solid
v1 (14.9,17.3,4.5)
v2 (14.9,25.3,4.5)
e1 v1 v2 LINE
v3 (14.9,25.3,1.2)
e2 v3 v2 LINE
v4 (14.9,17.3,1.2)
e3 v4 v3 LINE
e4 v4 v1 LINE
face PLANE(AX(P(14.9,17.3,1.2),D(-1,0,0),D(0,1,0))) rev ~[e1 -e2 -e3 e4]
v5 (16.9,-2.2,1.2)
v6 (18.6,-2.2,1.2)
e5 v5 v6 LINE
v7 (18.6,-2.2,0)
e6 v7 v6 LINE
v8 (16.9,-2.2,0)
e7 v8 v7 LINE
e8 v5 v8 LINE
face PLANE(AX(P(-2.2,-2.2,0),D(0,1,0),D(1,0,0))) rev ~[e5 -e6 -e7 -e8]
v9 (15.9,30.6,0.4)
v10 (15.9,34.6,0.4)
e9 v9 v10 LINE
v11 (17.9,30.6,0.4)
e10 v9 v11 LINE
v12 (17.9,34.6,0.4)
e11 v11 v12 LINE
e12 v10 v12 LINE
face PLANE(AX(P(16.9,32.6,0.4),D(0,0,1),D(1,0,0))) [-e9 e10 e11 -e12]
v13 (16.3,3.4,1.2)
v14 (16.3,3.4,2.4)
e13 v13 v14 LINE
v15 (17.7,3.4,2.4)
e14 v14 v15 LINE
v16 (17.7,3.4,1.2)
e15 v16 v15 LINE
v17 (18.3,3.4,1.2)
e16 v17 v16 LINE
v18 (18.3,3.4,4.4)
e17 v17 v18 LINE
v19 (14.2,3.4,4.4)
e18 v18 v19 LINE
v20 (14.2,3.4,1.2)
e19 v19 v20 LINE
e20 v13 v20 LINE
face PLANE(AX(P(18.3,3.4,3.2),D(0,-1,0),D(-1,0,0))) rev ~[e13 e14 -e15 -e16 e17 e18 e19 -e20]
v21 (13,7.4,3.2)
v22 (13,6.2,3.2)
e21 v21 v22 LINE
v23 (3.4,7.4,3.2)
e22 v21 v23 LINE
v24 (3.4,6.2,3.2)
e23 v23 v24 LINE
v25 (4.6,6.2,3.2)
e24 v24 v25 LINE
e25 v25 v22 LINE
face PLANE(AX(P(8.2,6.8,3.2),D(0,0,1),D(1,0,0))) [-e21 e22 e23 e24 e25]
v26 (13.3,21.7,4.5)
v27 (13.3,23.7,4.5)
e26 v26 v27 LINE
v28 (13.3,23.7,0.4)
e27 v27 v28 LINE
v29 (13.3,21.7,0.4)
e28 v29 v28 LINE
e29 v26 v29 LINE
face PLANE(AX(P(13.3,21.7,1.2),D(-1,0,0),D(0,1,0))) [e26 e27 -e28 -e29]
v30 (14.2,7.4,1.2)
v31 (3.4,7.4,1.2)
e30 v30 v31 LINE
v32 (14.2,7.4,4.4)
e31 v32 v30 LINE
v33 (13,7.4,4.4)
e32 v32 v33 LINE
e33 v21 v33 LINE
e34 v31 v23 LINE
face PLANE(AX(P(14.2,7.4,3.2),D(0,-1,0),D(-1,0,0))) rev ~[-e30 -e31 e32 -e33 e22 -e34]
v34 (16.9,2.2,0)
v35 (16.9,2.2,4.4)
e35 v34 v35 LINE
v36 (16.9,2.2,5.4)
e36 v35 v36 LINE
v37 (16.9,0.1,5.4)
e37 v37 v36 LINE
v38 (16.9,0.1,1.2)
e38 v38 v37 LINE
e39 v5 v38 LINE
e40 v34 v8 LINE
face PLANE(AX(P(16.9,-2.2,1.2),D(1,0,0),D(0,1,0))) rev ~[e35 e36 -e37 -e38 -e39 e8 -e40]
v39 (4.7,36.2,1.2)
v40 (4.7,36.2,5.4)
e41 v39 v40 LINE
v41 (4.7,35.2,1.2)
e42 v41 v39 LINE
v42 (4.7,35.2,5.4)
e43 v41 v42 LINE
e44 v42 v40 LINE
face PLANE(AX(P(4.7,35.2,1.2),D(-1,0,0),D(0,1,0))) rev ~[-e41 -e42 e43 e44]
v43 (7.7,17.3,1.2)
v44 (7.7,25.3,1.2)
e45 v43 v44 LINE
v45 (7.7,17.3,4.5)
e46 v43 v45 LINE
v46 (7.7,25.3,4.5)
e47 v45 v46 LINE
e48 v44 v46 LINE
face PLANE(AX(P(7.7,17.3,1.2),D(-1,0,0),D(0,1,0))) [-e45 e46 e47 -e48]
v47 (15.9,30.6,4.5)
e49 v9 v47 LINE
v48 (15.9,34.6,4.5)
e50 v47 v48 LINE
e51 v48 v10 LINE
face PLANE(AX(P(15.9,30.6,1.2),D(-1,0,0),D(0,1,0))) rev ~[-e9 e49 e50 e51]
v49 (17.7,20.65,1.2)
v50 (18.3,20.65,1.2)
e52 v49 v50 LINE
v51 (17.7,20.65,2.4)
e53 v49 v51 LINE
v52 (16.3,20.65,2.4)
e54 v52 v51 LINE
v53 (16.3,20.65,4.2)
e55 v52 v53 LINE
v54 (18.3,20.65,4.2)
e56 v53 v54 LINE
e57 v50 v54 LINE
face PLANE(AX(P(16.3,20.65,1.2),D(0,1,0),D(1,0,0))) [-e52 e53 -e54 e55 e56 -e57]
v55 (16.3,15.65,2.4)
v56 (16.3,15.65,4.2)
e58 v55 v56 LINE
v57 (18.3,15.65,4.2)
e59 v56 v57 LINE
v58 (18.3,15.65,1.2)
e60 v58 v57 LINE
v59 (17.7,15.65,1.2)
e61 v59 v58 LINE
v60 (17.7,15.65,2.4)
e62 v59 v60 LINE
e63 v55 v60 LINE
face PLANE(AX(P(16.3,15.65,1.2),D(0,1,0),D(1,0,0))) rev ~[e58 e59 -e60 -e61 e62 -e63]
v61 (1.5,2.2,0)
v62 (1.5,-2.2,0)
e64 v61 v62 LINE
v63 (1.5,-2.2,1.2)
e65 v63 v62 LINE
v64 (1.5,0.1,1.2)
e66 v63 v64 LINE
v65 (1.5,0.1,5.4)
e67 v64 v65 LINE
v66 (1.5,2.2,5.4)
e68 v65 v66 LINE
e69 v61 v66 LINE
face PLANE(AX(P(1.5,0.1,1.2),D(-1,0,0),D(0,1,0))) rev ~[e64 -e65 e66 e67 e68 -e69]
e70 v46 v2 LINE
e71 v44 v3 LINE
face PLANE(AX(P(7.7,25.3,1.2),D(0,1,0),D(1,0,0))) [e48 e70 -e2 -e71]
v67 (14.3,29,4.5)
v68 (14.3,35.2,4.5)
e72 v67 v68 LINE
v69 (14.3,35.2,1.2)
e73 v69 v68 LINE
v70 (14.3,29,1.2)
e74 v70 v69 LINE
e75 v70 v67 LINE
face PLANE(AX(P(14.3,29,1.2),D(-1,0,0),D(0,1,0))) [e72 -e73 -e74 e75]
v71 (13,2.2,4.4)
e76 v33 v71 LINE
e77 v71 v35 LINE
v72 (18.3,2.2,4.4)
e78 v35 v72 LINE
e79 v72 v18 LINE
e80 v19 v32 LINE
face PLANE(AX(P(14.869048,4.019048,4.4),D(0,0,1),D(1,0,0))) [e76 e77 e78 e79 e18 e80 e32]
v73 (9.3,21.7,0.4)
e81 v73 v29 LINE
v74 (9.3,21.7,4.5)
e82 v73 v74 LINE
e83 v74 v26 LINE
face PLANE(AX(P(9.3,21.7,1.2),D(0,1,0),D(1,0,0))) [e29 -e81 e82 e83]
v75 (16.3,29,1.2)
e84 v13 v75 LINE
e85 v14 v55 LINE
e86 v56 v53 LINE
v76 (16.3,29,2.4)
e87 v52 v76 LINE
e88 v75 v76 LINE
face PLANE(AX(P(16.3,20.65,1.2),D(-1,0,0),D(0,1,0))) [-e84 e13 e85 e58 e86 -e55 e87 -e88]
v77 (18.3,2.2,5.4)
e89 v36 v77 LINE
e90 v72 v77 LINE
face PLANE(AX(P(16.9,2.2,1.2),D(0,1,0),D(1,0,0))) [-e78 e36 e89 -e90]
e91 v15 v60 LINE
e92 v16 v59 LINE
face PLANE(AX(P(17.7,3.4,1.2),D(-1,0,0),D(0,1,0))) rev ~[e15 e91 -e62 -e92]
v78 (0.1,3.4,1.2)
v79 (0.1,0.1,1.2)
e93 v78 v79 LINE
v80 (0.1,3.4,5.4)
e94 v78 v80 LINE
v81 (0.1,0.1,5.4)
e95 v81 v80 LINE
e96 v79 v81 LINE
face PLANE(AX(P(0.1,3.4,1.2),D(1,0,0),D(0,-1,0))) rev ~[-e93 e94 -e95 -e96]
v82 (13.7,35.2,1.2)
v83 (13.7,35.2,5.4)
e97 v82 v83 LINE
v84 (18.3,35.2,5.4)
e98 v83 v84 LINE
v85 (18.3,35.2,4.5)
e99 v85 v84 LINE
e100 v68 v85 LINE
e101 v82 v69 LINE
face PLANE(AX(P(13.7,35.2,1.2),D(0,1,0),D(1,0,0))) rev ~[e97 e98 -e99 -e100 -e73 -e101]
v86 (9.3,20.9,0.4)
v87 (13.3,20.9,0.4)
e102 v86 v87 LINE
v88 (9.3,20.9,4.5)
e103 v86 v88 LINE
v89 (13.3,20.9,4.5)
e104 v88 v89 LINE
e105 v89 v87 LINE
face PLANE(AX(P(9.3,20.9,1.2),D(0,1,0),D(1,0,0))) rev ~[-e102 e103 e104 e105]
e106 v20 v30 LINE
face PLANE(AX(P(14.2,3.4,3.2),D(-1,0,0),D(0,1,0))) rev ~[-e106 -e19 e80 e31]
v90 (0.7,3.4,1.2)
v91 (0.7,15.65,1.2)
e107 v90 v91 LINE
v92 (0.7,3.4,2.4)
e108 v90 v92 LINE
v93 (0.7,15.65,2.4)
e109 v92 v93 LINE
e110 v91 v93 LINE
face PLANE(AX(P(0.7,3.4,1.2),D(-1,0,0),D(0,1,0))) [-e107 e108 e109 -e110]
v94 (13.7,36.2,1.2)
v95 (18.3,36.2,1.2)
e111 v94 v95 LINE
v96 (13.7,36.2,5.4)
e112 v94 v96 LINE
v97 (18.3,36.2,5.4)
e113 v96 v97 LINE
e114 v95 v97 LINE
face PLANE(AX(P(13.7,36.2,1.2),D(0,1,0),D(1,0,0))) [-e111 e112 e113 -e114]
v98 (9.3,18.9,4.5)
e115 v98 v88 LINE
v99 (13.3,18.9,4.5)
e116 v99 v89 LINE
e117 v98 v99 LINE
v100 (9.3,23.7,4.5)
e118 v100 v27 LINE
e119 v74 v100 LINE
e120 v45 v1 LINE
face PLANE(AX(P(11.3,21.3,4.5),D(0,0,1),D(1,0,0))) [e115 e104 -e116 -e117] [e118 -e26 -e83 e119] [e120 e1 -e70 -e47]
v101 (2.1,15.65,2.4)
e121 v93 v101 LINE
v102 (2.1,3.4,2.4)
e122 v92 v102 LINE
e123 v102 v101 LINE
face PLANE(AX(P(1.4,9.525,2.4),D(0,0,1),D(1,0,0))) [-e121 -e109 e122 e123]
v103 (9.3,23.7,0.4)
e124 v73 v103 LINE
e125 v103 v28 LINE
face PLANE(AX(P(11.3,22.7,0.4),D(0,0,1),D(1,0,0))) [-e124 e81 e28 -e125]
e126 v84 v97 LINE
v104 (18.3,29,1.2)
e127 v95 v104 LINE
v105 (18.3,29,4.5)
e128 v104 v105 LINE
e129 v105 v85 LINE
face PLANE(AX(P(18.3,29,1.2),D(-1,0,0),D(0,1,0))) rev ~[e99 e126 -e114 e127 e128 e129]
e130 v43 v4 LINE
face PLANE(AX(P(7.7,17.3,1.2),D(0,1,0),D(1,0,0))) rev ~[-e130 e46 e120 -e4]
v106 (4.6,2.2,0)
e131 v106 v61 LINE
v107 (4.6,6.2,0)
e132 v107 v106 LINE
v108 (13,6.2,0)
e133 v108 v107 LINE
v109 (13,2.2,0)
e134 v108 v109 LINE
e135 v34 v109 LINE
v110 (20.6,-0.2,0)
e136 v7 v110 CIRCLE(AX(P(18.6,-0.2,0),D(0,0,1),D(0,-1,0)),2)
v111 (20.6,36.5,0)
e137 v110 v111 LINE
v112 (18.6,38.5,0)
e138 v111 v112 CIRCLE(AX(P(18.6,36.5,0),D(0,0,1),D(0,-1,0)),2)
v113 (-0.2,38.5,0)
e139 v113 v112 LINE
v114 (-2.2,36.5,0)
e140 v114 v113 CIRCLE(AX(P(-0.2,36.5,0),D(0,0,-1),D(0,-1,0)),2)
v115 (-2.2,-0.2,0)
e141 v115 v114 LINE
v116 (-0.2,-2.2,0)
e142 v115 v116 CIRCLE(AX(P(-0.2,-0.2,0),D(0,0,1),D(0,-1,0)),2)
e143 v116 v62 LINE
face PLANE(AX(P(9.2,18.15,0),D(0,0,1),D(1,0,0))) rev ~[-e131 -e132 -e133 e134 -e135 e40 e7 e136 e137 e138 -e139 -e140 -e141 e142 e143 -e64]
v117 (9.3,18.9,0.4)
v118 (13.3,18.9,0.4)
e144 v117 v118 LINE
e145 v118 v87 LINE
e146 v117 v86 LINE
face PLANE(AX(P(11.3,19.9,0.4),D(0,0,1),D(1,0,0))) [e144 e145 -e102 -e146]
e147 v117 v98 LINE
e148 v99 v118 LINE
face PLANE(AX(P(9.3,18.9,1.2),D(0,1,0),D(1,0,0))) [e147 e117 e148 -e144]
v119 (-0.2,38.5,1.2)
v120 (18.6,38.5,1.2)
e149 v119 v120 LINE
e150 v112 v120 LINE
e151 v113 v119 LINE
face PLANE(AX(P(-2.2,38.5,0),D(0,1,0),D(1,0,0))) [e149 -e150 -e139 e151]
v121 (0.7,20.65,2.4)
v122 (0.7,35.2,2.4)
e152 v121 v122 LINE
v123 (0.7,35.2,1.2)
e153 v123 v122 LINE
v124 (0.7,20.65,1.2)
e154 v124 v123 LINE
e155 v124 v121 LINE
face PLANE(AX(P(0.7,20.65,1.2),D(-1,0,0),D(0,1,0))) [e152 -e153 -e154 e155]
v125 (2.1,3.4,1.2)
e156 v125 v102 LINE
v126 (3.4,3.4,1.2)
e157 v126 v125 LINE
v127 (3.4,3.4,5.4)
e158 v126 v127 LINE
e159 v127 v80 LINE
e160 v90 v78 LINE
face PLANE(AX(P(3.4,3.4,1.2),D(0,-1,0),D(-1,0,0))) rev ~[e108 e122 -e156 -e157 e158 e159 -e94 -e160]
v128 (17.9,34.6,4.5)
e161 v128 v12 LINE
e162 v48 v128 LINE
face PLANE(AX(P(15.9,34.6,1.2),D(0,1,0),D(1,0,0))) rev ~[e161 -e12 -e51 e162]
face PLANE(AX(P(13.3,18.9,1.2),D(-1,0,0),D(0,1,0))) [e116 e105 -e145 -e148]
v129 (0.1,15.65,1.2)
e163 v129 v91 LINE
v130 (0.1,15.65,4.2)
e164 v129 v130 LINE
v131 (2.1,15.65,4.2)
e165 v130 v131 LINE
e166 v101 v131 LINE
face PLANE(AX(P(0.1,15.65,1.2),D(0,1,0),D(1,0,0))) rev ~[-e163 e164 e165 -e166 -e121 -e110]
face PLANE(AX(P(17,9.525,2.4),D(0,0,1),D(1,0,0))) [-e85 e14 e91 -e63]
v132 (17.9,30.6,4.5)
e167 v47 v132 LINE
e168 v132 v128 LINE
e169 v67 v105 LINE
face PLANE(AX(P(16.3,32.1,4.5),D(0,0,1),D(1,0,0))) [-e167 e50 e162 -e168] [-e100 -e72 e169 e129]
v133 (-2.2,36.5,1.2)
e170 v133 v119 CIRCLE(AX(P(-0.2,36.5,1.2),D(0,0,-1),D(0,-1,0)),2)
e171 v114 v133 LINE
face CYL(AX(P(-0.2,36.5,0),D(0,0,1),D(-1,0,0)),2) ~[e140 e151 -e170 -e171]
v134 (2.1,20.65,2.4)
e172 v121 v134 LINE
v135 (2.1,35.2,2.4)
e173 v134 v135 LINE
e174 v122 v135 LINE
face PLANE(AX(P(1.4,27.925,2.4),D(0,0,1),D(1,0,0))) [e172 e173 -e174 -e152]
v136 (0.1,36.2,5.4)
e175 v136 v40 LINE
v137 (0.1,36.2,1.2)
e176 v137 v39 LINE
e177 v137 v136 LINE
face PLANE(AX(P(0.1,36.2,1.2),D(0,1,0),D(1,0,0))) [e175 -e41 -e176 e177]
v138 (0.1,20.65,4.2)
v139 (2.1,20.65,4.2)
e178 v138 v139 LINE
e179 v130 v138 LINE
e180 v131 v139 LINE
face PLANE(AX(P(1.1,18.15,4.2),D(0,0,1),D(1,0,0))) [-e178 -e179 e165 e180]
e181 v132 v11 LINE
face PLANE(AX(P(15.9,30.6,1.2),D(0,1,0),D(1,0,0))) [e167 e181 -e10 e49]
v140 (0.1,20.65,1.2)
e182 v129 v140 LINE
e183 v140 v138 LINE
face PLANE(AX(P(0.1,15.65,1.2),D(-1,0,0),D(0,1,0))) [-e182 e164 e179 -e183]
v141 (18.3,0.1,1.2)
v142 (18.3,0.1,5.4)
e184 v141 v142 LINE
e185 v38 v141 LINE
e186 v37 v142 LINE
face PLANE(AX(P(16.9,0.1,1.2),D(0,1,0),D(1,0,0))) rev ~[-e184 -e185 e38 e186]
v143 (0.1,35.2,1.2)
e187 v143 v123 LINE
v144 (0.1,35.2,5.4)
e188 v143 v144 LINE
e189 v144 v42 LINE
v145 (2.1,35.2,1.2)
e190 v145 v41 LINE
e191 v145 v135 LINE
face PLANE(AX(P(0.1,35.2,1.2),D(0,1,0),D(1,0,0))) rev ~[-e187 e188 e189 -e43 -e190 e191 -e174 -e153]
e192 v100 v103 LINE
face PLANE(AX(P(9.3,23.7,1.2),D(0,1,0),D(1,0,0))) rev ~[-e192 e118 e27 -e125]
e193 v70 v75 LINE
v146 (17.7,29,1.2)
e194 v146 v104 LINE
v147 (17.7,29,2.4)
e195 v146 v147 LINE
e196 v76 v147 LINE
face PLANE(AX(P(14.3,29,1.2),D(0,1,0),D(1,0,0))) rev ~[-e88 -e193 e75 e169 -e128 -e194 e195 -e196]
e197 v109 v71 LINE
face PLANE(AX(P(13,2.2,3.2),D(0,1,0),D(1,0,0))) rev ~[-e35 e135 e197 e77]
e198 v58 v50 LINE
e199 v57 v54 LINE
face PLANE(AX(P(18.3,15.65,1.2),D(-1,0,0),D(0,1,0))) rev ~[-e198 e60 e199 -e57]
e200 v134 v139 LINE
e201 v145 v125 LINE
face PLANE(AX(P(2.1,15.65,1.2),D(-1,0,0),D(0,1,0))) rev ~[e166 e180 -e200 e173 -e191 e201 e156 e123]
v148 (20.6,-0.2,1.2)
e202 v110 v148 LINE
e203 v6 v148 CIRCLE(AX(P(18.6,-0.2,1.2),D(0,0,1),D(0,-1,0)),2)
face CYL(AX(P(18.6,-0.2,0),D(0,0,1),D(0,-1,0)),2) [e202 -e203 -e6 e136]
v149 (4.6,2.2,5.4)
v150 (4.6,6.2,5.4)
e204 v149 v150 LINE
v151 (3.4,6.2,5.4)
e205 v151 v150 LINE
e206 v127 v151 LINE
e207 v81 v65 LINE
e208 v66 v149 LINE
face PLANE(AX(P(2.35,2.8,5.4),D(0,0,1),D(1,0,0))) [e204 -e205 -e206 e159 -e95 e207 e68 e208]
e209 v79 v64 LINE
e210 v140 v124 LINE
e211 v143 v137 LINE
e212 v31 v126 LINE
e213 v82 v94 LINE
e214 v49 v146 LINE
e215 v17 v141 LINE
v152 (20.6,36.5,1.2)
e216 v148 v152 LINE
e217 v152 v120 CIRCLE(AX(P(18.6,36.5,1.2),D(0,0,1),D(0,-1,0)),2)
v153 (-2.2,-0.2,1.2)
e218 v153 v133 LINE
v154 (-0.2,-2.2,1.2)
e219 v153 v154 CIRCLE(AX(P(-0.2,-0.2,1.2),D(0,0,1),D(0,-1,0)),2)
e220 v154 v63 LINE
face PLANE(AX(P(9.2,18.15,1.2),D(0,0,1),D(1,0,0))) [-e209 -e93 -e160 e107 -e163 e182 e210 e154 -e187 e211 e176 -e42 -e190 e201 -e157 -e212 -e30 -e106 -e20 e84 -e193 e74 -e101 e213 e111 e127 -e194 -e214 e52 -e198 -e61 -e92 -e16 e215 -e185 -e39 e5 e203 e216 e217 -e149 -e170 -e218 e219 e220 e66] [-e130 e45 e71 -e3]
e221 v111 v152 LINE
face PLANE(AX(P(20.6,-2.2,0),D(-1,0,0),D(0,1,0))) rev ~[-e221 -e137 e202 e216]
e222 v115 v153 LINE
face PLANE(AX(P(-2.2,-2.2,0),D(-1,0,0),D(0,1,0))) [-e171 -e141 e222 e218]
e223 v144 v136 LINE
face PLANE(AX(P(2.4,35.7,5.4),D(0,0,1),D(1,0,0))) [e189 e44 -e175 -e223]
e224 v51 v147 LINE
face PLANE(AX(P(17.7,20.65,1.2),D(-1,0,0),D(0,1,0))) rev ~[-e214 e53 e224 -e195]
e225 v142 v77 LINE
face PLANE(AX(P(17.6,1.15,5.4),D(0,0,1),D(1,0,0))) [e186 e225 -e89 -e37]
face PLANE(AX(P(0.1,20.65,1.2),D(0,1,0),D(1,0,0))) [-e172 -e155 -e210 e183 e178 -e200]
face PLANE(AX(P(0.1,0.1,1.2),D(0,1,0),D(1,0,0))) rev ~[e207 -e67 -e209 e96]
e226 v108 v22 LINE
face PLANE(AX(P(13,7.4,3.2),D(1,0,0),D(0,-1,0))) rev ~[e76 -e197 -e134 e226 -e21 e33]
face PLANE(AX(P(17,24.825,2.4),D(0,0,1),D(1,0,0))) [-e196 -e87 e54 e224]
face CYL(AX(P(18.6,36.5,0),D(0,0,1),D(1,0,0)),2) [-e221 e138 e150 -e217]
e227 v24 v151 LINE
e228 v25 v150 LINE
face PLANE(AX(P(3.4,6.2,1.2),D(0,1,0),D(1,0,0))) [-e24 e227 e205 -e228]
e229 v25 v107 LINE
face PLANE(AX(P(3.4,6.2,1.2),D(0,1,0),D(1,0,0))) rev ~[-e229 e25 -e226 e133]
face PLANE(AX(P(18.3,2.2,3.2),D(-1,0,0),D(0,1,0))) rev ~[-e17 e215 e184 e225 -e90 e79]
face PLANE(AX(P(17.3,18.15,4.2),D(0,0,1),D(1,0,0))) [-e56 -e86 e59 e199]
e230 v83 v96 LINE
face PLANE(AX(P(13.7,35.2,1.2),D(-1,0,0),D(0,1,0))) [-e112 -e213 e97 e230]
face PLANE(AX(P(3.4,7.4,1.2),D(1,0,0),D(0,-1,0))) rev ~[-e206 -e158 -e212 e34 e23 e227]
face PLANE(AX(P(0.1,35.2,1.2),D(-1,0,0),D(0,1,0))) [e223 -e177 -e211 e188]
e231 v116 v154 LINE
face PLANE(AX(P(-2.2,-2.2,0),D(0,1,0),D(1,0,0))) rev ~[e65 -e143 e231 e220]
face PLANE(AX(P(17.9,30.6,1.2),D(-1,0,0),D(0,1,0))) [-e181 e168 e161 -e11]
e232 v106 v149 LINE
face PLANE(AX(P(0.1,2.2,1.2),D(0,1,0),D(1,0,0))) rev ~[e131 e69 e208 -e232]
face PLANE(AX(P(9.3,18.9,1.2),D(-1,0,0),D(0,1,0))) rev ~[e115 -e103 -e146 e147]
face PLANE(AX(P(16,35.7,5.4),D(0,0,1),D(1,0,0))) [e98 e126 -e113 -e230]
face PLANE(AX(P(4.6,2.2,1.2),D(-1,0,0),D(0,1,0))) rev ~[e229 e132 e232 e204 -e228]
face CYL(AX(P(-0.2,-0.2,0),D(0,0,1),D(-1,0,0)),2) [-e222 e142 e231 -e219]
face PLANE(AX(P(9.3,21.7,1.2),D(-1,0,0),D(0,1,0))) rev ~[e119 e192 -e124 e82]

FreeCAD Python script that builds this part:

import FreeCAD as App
import Part
import Sketcher
from FreeCAD import Vector
Q = App.Units.Quantity


def edges_at(feature, points):
    """Names of the edges that pass closest to the given points."""
    edges = feature.Shape.Edges
    near = lambda p: min(range(len(edges)), key=lambda i: edges[i].distToShape(Part.Vertex(*p))[0])
    return sorted({f"Edge{near(p) + 1}" for p in points})

doc = App.newDocument("Part")
body = doc.addObject("PartDesign::Body", "Body")

sketch1 = body.newObject("Sketcher::SketchObject", "Sketch")
sketch1.AttachmentSupport = (doc.getObject("XY_Plane"), [""])
sketch1.MapMode = "FlatFace"
sketch1.addGeometry([
    Part.LineSegment(Vector(-2.2, 38.5, 0), Vector(-2.2, -2.2, 0)),
    Part.LineSegment(Vector(-2.2, -2.2, 0), Vector(20.6, -2.2, 0)),
    Part.LineSegment(Vector(20.6, -2.2, 0), Vector(20.6, 38.5, 0)),
    Part.LineSegment(Vector(20.6, 38.5, 0), Vector(-2.2, 38.5, 0)),
], False)
sketch1.addConstraint([
    Sketcher.Constraint("Coincident", 0, 2, 1, 1),
    Sketcher.Constraint("Coincident", 1, 2, 2, 1),
    Sketcher.Constraint("Coincident", 2, 2, 3, 1),
    Sketcher.Constraint("Coincident", 3, 2, 0, 1),
    Sketcher.Constraint("Vertical", 0),
    Sketcher.Constraint("Horizontal", 1),
    Sketcher.Constraint("Vertical", 2),
    Sketcher.Constraint("Horizontal", 3),
    Sketcher.Constraint("DistanceX", 1, 1, 1, 2, Q("22.8 mm")),
    Sketcher.Constraint("DistanceY", 0, 2, 0, 1, Q("40.7 mm")),
    Sketcher.Constraint("DistanceX", 0, 2, -1, 1, Q("2.2 mm")),
    Sketcher.Constraint("DistanceY", 0, 2, -1, 1, Q("2.2 mm")),
])
pad1 = body.newObject("PartDesign::Pad", "Pad")
pad1.Profile = sketch1
pad1.Length = 1.2
doc.recompute()

fillet = body.newObject("PartDesign::Fillet", "Fillet")
fillet.Base = (pad1, edges_at(pad1, [
    (-2.2, 38.5, 0.6),
    (20.6, 38.5, 0.6),
    (20.6, -2.2, 0.6),
    (-2.2, -2.2, 0.6),
]))
fillet.Radius = 2

sketch2 = body.newObject("Sketcher::SketchObject", "Sketch001")
sketch2.AttachmentSupport = (doc.getObject("XY_Plane"), [""])
sketch2.MapMode = "FlatFace"
sketch2.AttachmentOffset = App.Placement(Vector(0, 0, 1.2), App.Rotation())
sketch2.addGeometry([
    Part.LineSegment(Vector(1.5, 2.2, 0), Vector(1.5, -2.2, 0)),
    Part.LineSegment(Vector(1.5, -2.2, 0), Vector(16.9, -2.2, 0)),
    Part.LineSegment(Vector(16.9, -2.2, 0), Vector(16.9, 2.2, 0)),
    Part.LineSegment(Vector(16.9, 2.2, 0), Vector(1.5, 2.2, 0)),
], False)
sketch2.addConstraint([
    Sketcher.Constraint("Coincident", 0, 2, 1, 1),
    Sketcher.Constraint("Coincident", 1, 2, 2, 1),
    Sketcher.Constraint("Coincident", 2, 2, 3, 1),
    Sketcher.Constraint("Coincident", 3, 2, 0, 1),
    Sketcher.Constraint("Vertical", 0),
    Sketcher.Constraint("Horizontal", 1),
    Sketcher.Constraint("Vertical", 2),
    Sketcher.Constraint("Horizontal", 3),
    Sketcher.Constraint("DistanceX", 1, 1, 1, 2, Q("15.4 mm")),
    Sketcher.Constraint("DistanceY", 0, 2, 0, 1, Q("4.4 mm")),
    Sketcher.Constraint("DistanceX", -1, 1, 0, 2, Q("1.5 mm")),
    Sketcher.Constraint("DistanceY", 0, 2, -1, 1, Q("2.2 mm")),
])
pocket1 = body.newObject("PartDesign::Pocket", "Pocket")
pocket1.Profile = sketch2
pocket1.Type = "UpToFirst"

sketch3 = body.newObject("Sketcher::SketchObject", "Sketch002")
sketch3.AttachmentSupport = (doc.getObject("XY_Plane"), [""])
sketch3.MapMode = "FlatFace"
sketch3.AttachmentOffset = App.Placement(Vector(0, 0, 1.2), App.Rotation())
sketch3.addGeometry([
    Part.LineSegment(Vector(1.5, 2.2, 0), Vector(1.5, -2.2, 0)),
    Part.LineSegment(Vector(1.5, -2.2, 0), Vector(16.9, -2.2, 0)),
    Part.LineSegment(Vector(16.9, -2.2, 0), Vector(16.9, 2.2, 0)),
    Part.LineSegment(Vector(16.9, 2.2, 0), Vector(1.5, 2.2, 0)),
], False)
sketch3.addConstraint([
    Sketcher.Constraint("Coincident", 0, 2, 1, 1),
    Sketcher.Constraint("Coincident", 1, 2, 2, 1),
    Sketcher.Constraint("Coincident", 2, 2, 3, 1),
    Sketcher.Constraint("Coincident", 3, 2, 0, 1),
    Sketcher.Constraint("Vertical", 0),
    Sketcher.Constraint("Horizontal", 1),
    Sketcher.Constraint("Vertical", 2),
    Sketcher.Constraint("Horizontal", 3),
    Sketcher.Constraint("DistanceX", 1, 1, 1, 2, Q("15.4 mm")),
    Sketcher.Constraint("DistanceY", 0, 2, 0, 1, Q("4.4 mm")),
    Sketcher.Constraint("DistanceX", -1, 1, 0, 2, Q("1.5 mm")),
    Sketcher.Constraint("DistanceY", 0, 2, -1, 1, Q("2.2 mm")),
])
pocket2 = body.newObject("PartDesign::Pocket", "Pocket001")
pocket2.Profile = sketch3
pocket2.Length = 44.681232
pocket2.Reversed = True

sketch4 = body.newObject("Sketcher::SketchObject", "Sketch003")
sketch4.AttachmentSupport = (doc.getObject("XY_Plane"), [""])
sketch4.MapMode = "FlatFace"
sketch4.AttachmentOffset = App.Placement(Vector(0, 0, 1.2), App.Rotation())
sketch4.addGeometry([
    Part.LineSegment(Vector(4.6, 6.2, 0), Vector(4.6, 2.2, 0)),
    Part.LineSegment(Vector(4.6, 2.2, 0), Vector(13, 2.2, 0)),
    Part.LineSegment(Vector(13, 2.2, 0), Vector(13, 6.2, 0)),
    Part.LineSegment(Vector(13, 6.2, 0), Vector(4.6, 6.2, 0)),
], False)
sketch4.addConstraint([
    Sketcher.Constraint("Coincident", 0, 2, 1, 1),
    Sketcher.Constraint("Coincident", 1, 2, 2, 1),
    Sketcher.Constraint("Coincident", 2, 2, 3, 1),
    Sketcher.Constraint("Coincident", 3, 2, 0, 1),
    Sketcher.Constraint("Vertical", 0),
    Sketcher.Constraint("Horizontal", 1),
    Sketcher.Constraint("Vertical", 2),
    Sketcher.Constraint("Horizontal", 3),
    Sketcher.Constraint("DistanceY", 0, 2, 0, 1, Q("4 mm")),
    Sketcher.Constraint("DistanceX", 1, 1, 1, 2, Q("8.4 mm")),
    Sketcher.Constraint("DistanceX", -1, 1, 1, 2, Q("13 mm")),
    Sketcher.Constraint("DistanceY", -1, 1, 0, 2, Q("2.2 mm")),
])
pocket3 = body.newObject("PartDesign::Pocket", "Pocket002")
pocket3.Profile = sketch4
pocket3.Type = "UpToFirst"

sketch5 = body.newObject("Sketcher::SketchObject", "Sketch004")
sketch5.AttachmentSupport = (doc.getObject("XY_Plane"), [""])
sketch5.MapMode = "FlatFace"
sketch5.AttachmentOffset = App.Placement(Vector(0, 0, 1.2), App.Rotation())
sketch5.addGeometry([
    Part.LineSegment(Vector(13.7, 36.2, 0), Vector(13.7, 35.2, 0)),
    Part.LineSegment(Vector(13.7, 35.2, 0), Vector(18.3, 35.2, 0)),
    Part.LineSegment(Vector(18.3, 35.2, 0), Vector(18.3, 36.2, 0)),
    Part.LineSegment(Vector(18.3, 36.2, 0), Vector(13.7, 36.2, 0)),
    Part.LineSegment(Vector(0.1, 36.2, 0), Vector(0.1, 35.2, 0)),
    Part.LineSegment(Vector(0.1, 35.2, 0), Vector(4.7, 35.2, 0)),
    Part.LineSegment(Vector(4.7, 35.2, 0), Vector(4.7, 36.2, 0)),
    Part.LineSegment(Vector(4.7, 36.2, 0), Vector(0.1, 36.2, 0)),
    Part.LineSegment(Vector(0.1, 2.2, 0), Vector(0.1, 0.1, 0)),
    Part.LineSegment(Vector(0.1, 0.1, 0), Vector(1.5, 0.1, 0)),
    Part.LineSegment(Vector(1.5, 0.1, 0), Vector(1.5, 2.2, 0)),
    Part.LineSegment(Vector(1.5, 2.2, 0), Vector(0.1, 2.2, 0)),
    Part.LineSegment(Vector(16.9, 2.2, 0), Vector(16.9, 0.1, 0)),
    Part.LineSegment(Vector(16.9, 0.1, 0), Vector(18.3, 0.1, 0)),
    Part.LineSegment(Vector(18.3, 0.1, 0), Vector(18.3, 2.2, 0)),
    Part.LineSegment(Vector(18.3, 2.2, 0), Vector(16.9, 2.2, 0)),
], False)
sketch5.addConstraint([
    Sketcher.Constraint("Coincident", 0, 2, 1, 1),
    Sketcher.Constraint("Coincident", 1, 2, 2, 1),
    Sketcher.Constraint("Coincident", 2, 2, 3, 1),
    Sketcher.Constraint("Coincident", 3, 2, 0, 1),
    Sketcher.Constraint("Coincident", 4, 2, 5, 1),
    Sketcher.Constraint("Coincident", 5, 2, 6, 1),
    Sketcher.Constraint("Coincident", 6, 2, 7, 1),
    Sketcher.Constraint("Coincident", 7, 2, 4, 1),
    Sketcher.Constraint("Coincident", 8, 2, 9, 1),
    Sketcher.Constraint("Coincident", 9, 2, 10, 1),
    Sketcher.Constraint("Coincident", 10, 2, 11, 1),
    Sketcher.Constraint("Coincident", 11, 2, 8, 1),
    Sketcher.Constraint("Coincident", 12, 2, 13, 1),
    Sketcher.Constraint("Coincident", 13, 2, 14, 1),
    Sketcher.Constraint("Coincident", 14, 2, 15, 1),
    Sketcher.Constraint("Coincident", 15, 2, 12, 1),
    Sketcher.Constraint("Vertical", 0),
    Sketcher.Constraint("Horizontal", 1),
    Sketcher.Constraint("Vertical", 2),
    Sketcher.Constraint("Horizontal", 3),
    Sketcher.Constraint("Vertical", 4),
    Sketcher.Constraint("Horizontal", 5),
    Sketcher.Constraint("Vertical", 6),
    Sketcher.Constraint("Horizontal", 7),
    Sketcher.Constraint("Vertical", 8),
    Sketcher.Constraint("Horizontal", 9),
    Sketcher.Constraint("Vertical", 10),
    Sketcher.Constraint("Horizontal", 11),
    Sketcher.Constraint("Vertical", 12),
    Sketcher.Constraint("Horizontal", 13),
    Sketcher.Constraint("Vertical", 14),
    Sketcher.Constraint("Horizontal", 15),
    Sketcher.Constraint("Horizontal", 1, 2, 4, 2),
    Sketcher.Constraint("Horizontal", 3, 2, 6, 2),
    Sketcher.Constraint("Horizontal", 9, 2, 12, 2),
    Sketcher.Constraint("Horizontal", 11, 2, 14, 2),
    Sketcher.Constraint("Vertical", 7, 2, 8, 2),
    Sketcher.Constraint("Vertical", 2, 2, 13, 2),
    Sketcher.Constraint("Equal", 3, 5),
    Sketcher.Constraint("Equal", 11, 13),
    Sketcher.Constraint("DistanceY", 0, 2, 0, 1, Q("1 mm")),
    Sketcher.Constraint("DistanceX", 1, 1, 1, 2, Q("4.6 mm")),
    Sketcher.Constraint("DistanceX", 9, 1, 9, 2, Q("1.4 mm")),
    Sketcher.Constraint("DistanceY", 8, 2, 8, 1, Q("2.1 mm")),
    Sketcher.Constraint("DistanceX", 5, 2, 0, 2, Q("9 mm")),
    Sketcher.Constraint("DistanceY", 10, 2, 4, 2, Q("33 mm")),
    Sketcher.Constraint("DistanceX", -1, 1, 0, 2, Q("13.7 mm")),
    Sketcher.Constraint("DistanceY", -1, 1, 0, 2, Q("35.2 mm")),
])
pad2 = body.newObject("PartDesign::Pad", "Pad001")
pad2.Profile = sketch5
pad2.Length = 4.2

sketch6 = body.newObject("Sketcher::SketchObject", "Sketch005")
sketch6.AttachmentSupport = (doc.getObject("XY_Plane"), [""])
sketch6.MapMode = "FlatFace"
sketch6.AttachmentOffset = App.Placement(Vector(0, 0, 1.2), App.Rotation())
sketch6.addGeometry([
    Part.LineSegment(Vector(0.1, 3.4, 0), Vector(0.1, 2.2, 0)),
    Part.LineSegment(Vector(0.1, 2.2, 0), Vector(4.6, 2.2, 0)),
    Part.LineSegment(Vector(4.6, 2.2, 0), Vector(4.6, 6.2, 0)),
    Part.LineSegment(Vector(4.6, 6.2, 0), Vector(3.4, 6.2, 0)),
    Part.LineSegment(Vector(3.4, 6.2, 0), Vector(3.4, 3.4, 0)),
    Part.LineSegment(Vector(3.4, 3.4, 0), Vector(0.1, 3.4, 0)),
], False)
sketch6.addConstraint([
    Sketcher.Constraint("Coincident", 0, 2, 1, 1),
    Sketcher.Constraint("Coincident", 1, 2, 2, 1),
    Sketcher.Constraint("Coincident", 2, 2, 3, 1),
    Sketcher.Constraint("Coincident", 3, 2, 4, 1),
    Sketcher.Constraint("Coincident", 4, 2, 5, 1),
    Sketcher.Constraint("Coincident", 5, 2, 0, 1),
    Sketcher.Constraint("Vertical", 0),
    Sketcher.Constraint("Horizontal", 1),
    Sketcher.Constraint("Vertical", 2),
    Sketcher.Constraint("Horizontal", 3),
    Sketcher.Constraint("Vertical", 4),
    Sketcher.Constraint("Horizontal", 5),
    Sketcher.Constraint("Equal", 3, 0),
    Sketcher.Constraint("DistanceY", 2, 1, 2, 2, Q("4 mm")),
    Sketcher.Constraint("DistanceX", 1, 1, 1, 2, Q("4.5 mm")),
    Sketcher.Constraint("DistanceX", 3, 2, 3, 1, Q("1.2 mm")),
    Sketcher.Constraint("DistanceX", -1, 1, 0, 2, Q("0.1 mm")),
    Sketcher.Constraint("DistanceY", -1, 1, 0, 2, Q("2.2 mm")),
])
pad3 = body.newObject("PartDesign::Pad", "Pad002")
pad3.Profile = sketch6
pad3.Length = 4.2

sketch7 = body.newObject("Sketcher::SketchObject", "Sketch006")
sketch7.AttachmentSupport = (doc.getObject("XY_Plane"), [""])
sketch7.MapMode = "FlatFace"
sketch7.AttachmentOffset = App.Placement(Vector(0, 0, 1.2), App.Rotation())
sketch7.addGeometry([
    Part.LineSegment(Vector(3.4, 7.4, 0), Vector(3.4, 6.2, 0)),
    Part.LineSegment(Vector(3.4, 6.2, 0), Vector(13, 6.2, 0)),
    Part.LineSegment(Vector(13, 6.2, 0), Vector(13, 2.2, 0)),
    Part.LineSegment(Vector(13, 2.2, 0), Vector(18.3, 2.2, 0)),
    Part.LineSegment(Vector(18.3, 2.2, 0), Vector(18.3, 3.4, 0)),
    Part.LineSegment(Vector(18.3, 3.4, 0), Vector(14.2, 3.4, 0)),
    Part.LineSegment(Vector(14.2, 3.4, 0), Vector(14.2, 7.4, 0)),
    Part.LineSegment(Vector(14.2, 7.4, 0), Vector(3.4, 7.4, 0)),
], False)
sketch7.addConstraint([
    Sketcher.Constraint("Coincident", 0, 2, 1, 1),
    Sketcher.Constraint("Coincident", 1, 2, 2, 1),
    Sketcher.Constraint("Coincident", 2, 2, 3, 1),
    Sketcher.Constraint("Coincident", 3, 2, 4, 1),
    Sketcher.Constraint("Coincident", 4, 2, 5, 1),
    Sketcher.Constraint("Coincident", 5, 2, 6, 1),
    Sketcher.Constraint("Coincident", 6, 2, 7, 1),
    Sketcher.Constraint("Coincident", 7, 2, 0, 1),
    Sketcher.Constraint("Vertical", 0),
    Sketcher.Constraint("Horizontal", 1),
    Sketcher.Constraint("Vertical", 2),
    Sketcher.Constraint("Horizontal", 3),
    Sketcher.Constraint("Vertical", 4),
    Sketcher.Constraint("Horizontal", 5),
    Sketcher.Constraint("Vertical", 6),
    Sketcher.Constraint("Horizontal", 7),
    Sketcher.Constraint("Equal", 0, 4),
    Sketcher.Constraint("DistanceY", 2, 2, 2, 1, Q("4 mm")),
    Sketcher.Constraint("DistanceX", 1, 1, 1, 2, Q("9.6 mm")),
    Sketcher.Constraint("DistanceX", 3, 1, 3, 2, Q("5.3 mm")),
    Sketcher.Constraint("DistanceX", 5, 2, 5, 1, Q("4.1 mm")),
    Sketcher.Constraint("DistanceY", 0, 2, 0, 1, Q("1.2 mm")),
    Sketcher.Constraint("DistanceX", -1, 1, 1, 2, Q("13 mm")),
    Sketcher.Constraint("DistanceY", -1, 1, 0, 2, Q("6.2 mm")),
])
pad4 = body.newObject("PartDesign::Pad", "Pad003")
pad4.Profile = sketch7
pad4.Length = 2

sketch8 = body.newObject("Sketcher::SketchObject", "Sketch007")
sketch8.AttachmentSupport = (doc.getObject("XY_Plane"), [""])
sketch8.MapMode = "FlatFace"
sketch8.AttachmentOffset = App.Placement(Vector(0, 0, 3.2), App.Rotation())
sketch8.addGeometry([
    Part.LineSegment(Vector(13, 7.4, 0), Vector(13, 2.2, 0)),
    Part.LineSegment(Vector(13, 2.2, 0), Vector(18.3, 2.2, 0)),
    Part.LineSegment(Vector(18.3, 2.2, 0), Vector(18.3, 3.4, 0)),
    Part.LineSegment(Vector(18.3, 3.4, 0), Vector(14.2, 3.4, 0)),
    Part.LineSegment(Vector(14.2, 3.4, 0), Vector(14.2, 7.4, 0)),
    Part.LineSegment(Vector(14.2, 7.4, 0), Vector(13, 7.4, 0)),
], False)
sketch8.addConstraint([
    Sketcher.Constraint("Coincident", 0, 2, 1, 1),
    Sketcher.Constraint("Coincident", 1, 2, 2, 1),
    Sketcher.Constraint("Coincident", 2, 2, 3, 1),
    Sketcher.Constraint("Coincident", 3, 2, 4, 1),
    Sketcher.Constraint("Coincident", 4, 2, 5, 1),
    Sketcher.Constraint("Coincident", 5, 2, 0, 1),
    Sketcher.Constraint("Vertical", 0),
    Sketcher.Constraint("Horizontal", 1),
    Sketcher.Constraint("Vertical", 2),
    Sketcher.Constraint("Horizontal", 3),
    Sketcher.Constraint("Vertical", 4),
    Sketcher.Constraint("Horizontal", 5),
    Sketcher.Constraint("Equal", 5, 2),
    Sketcher.Constraint("DistanceY", 4, 1, 4, 2, Q("4 mm")),
    Sketcher.Constraint("DistanceX", 1, 1, 1, 2, Q("5.3 mm")),
    Sketcher.Constraint("DistanceX", 3, 2, 3, 1, Q("4.1 mm")),
    Sketcher.Constraint("DistanceX", -1, 1, 0, 2, Q("13 mm")),
    Sketcher.Constraint("DistanceY", -1, 1, 0, 2, Q("2.2 mm")),
])
pad5 = body.newObject("PartDesign::Pad", "Pad004")
pad5.Profile = sketch8
pad5.Length = 1.2

sketch9 = body.newObject("Sketcher::SketchObject", "Sketch008")
sketch9.AttachmentSupport = (doc.getObject("XY_Plane"), [""])
sketch9.MapMode = "FlatFace"
sketch9.AttachmentOffset = App.Placement(Vector(0, 0, 1.2), App.Rotation())
sketch9.addGeometry([
    Part.LineSegment(Vector(15.9, 34.6, 0), Vector(15.9, 30.6, 0)),
    Part.LineSegment(Vector(15.9, 30.6, 0), Vector(17.9, 30.6, 0)),
    Part.LineSegment(Vector(17.9, 30.6, 0), Vector(17.9, 34.6, 0)),
    Part.LineSegment(Vector(17.9, 34.6, 0), Vector(15.9, 34.6, 0)),
    Part.LineSegment(Vector(9.3, 23.7, 0), Vector(9.3, 21.7, 0)),
    Part.LineSegment(Vector(9.3, 21.7, 0), Vector(13.3, 21.7, 0)),
    Part.LineSegment(Vector(13.3, 21.7, 0), Vector(13.3, 23.7, 0)),
    Part.LineSegment(Vector(13.3, 23.7, 0), Vector(9.3, 23.7, 0)),
    Part.LineSegment(Vector(9.3, 20.9, 0), Vector(9.3, 18.9, 0)),
    Part.LineSegment(Vector(9.3, 18.9, 0), Vector(13.3, 18.9, 0)),
    Part.LineSegment(Vector(13.3, 18.9, 0), Vector(13.3, 20.9, 0)),
    Part.LineSegment(Vector(13.3, 20.9, 0), Vector(9.3, 20.9, 0)),
], False)
sketch9.addConstraint([
    Sketcher.Constraint("Coincident", 0, 2, 1, 1),
    Sketcher.Constraint("Coincident", 1, 2, 2, 1),
    Sketcher.Constraint("Coincident", 2, 2, 3, 1),
    Sketcher.Constraint("Coincident", 3, 2, 0, 1),
    Sketcher.Constraint("Coincident", 4, 2, 5, 1),
    Sketcher.Constraint("Coincident", 5, 2, 6, 1),
    Sketcher.Constraint("Coincident", 6, 2, 7, 1),
    Sketcher.Constraint("Coincident", 7, 2, 4, 1),
    Sketcher.Constraint("Coincident", 8, 2, 9, 1),
    Sketcher.Constraint("Coincident", 9, 2, 10, 1),
    Sketcher.Constraint("Coincident", 10, 2, 11, 1),
    Sketcher.Constraint("Coincident", 11, 2, 8, 1),
    Sketcher.Constraint("Vertical", 0),
    Sketcher.Constraint("Horizontal", 1),
    Sketcher.Constraint("Vertical", 2),
    Sketcher.Constraint("Horizontal", 3),
    Sketcher.Constraint("Vertical", 4),
    Sketcher.Constraint("Horizontal", 5),
    Sketcher.Constraint("Vertical", 6),
    Sketcher.Constraint("Horizontal", 7),
    Sketcher.Constraint("Vertical", 8),
    Sketcher.Constraint("Horizontal", 9),
    Sketcher.Constraint("Vertical", 10),
    Sketcher.Constraint("Horizontal", 11),
    Sketcher.Constraint("Vertical", 7, 2, 8, 2),
    Sketcher.Constraint("Vertical", 6, 2, 9, 2),
    Sketcher.Constraint("Equal", 11, 0),
    Sketcher.Constraint("Equal", 3, 4),
    Sketcher.Constraint("Equal", 6, 8),
    Sketcher.Constraint("DistanceX", 1, 1, 1, 2, Q("2 mm")),
    Sketcher.Constraint("DistanceX", 5, 1, 5, 2, Q("4 mm")),
    Sketcher.Constraint("DistanceX", -1, 1, 0, 2, Q("15.9 mm")),
    Sketcher.Constraint("DistanceY", -1, 1, 0, 2, Q("30.6 mm")),
    Sketcher.Constraint("DistanceX", -1, 1, 4, 2, Q("9.3 mm")),
    Sketcher.Constraint("DistanceY", -1, 1, 4, 2, Q("21.7 mm")),
    Sketcher.Constraint("DistanceY", -1, 1, 8, 2, Q("18.9 mm")),
])
pocket4 = body.newObject("PartDesign::Pocket", "Pocket003")
pocket4.Profile = sketch9
pocket4.Length = 0.8

sketch10 = body.newObject("Sketcher::SketchObject", "Sketch009")
sketch10.AttachmentSupport = (doc.getObject("XY_Plane"), [""])
sketch10.MapMode = "FlatFace"
sketch10.AttachmentOffset = App.Placement(Vector(0, 0, 1.2), App.Rotation())
sketch10.addGeometry([
    Part.LineSegment(Vector(7.7, 25.3, 0), Vector(7.7, 17.3, 0)),
    Part.LineSegment(Vector(7.7, 17.3, 0), Vector(14.9, 17.3, 0)),
    Part.LineSegment(Vector(14.9, 17.3, 0), Vector(14.9, 25.3, 0)),
    Part.LineSegment(Vector(14.9, 25.3, 0), Vector(7.7, 25.3, 0)),
    Part.LineSegment(Vector(13.3, 18.9, 0), Vector(9.3, 18.9, 0)),
    Part.LineSegment(Vector(9.3, 18.9, 0), Vector(9.3, 20.9, 0)),
    Part.LineSegment(Vector(9.3, 20.9, 0), Vector(13.3, 20.9, 0)),
    Part.LineSegment(Vector(13.3, 20.9, 0), Vector(13.3, 18.9, 0)),
    Part.LineSegment(Vector(13.3, 21.7, 0), Vector(9.3, 21.7, 0)),
    Part.LineSegment(Vector(9.3, 21.7, 0), Vector(9.3, 23.7, 0)),
    Part.LineSegment(Vector(9.3, 23.7, 0), Vector(13.3, 23.7, 0)),
    Part.LineSegment(Vector(13.3, 23.7, 0), Vector(13.3, 21.7, 0)),
    Part.LineSegment(Vector(14.3, 35.2, 0), Vector(14.3, 29, 0)),
    Part.LineSegment(Vector(14.3, 29, 0), Vector(18.3, 29, 0)),
    Part.LineSegment(Vector(18.3, 29, 0), Vector(18.3, 35.2, 0)),
    Part.LineSegment(Vector(18.3, 35.2, 0), Vector(14.3, 35.2, 0)),
    Part.LineSegment(Vector(17.9, 30.6, 0), Vector(15.9, 30.6, 0)),
    Part.LineSegment(Vector(15.9, 30.6, 0), Vector(15.9, 34.6, 0)),
    Part.LineSegment(Vector(15.9, 34.6, 0), Vector(17.9, 34.6, 0)),
    Part.LineSegment(Vector(17.9, 34.6, 0), Vector(17.9, 30.6, 0)),
], False)
sketch10.addConstraint([
    Sketcher.Constraint("Coincident", 0, 2, 1, 1),
    Sketcher.Constraint("Coincident", 1, 2, 2, 1),
    Sketcher.Constraint("Coincident", 2, 2, 3, 1),
    Sketcher.Constraint("Coincident", 3, 2, 0, 1),
    Sketcher.Constraint("Coincident", 4, 2, 5, 1),
    Sketcher.Constraint("Coincident", 5, 2, 6, 1),
    Sketcher.Constraint("Coincident", 6, 2, 7, 1),
    Sketcher.Constraint("Coincident", 7, 2, 4, 1),
    Sketcher.Constraint("Coincident", 8, 2, 9, 1),
    Sketcher.Constraint("Coincident", 9, 2, 10, 1),
    Sketcher.Constraint("Coincident", 10, 2, 11, 1),
    Sketcher.Constraint("Coincident", 11, 2, 8, 1),
    Sketcher.Constraint("Coincident", 12, 2, 13, 1),
    Sketcher.Constraint("Coincident", 13, 2, 14, 1),
    Sketcher.Constraint("Coincident", 14, 2, 15, 1),
    Sketcher.Constraint("Coincident", 15, 2, 12, 1),
    Sketcher.Constraint("Coincident", 16, 2, 17, 1),
    Sketcher.Constraint("Coincident", 17, 2, 18, 1),
    Sketcher.Constraint("Coincident", 18, 2, 19, 1),
    Sketcher.Constraint("Coincident", 19, 2, 16, 1),
    Sketcher.Constraint("Vertical", 0),
    Sketcher.Constraint("Horizontal", 1),
    Sketcher.Constraint("Vertical", 2),
    Sketcher.Constraint("Horizontal", 3),
    Sketcher.Constraint("Horizontal", 4),
    Sketcher.Constraint("Vertical", 5),
    Sketcher.Constraint("Horizontal", 6),
    Sketcher.Constraint("Vertical", 7),
    Sketcher.Constraint("Horizontal", 8),
    Sketcher.Constraint("Vertical", 9),
    Sketcher.Constraint("Horizontal", 10),
    Sketcher.Constraint("Vertical", 11),
    Sketcher.Constraint("Vertical", 12),
    Sketcher.Constraint("Horizontal", 13),
    Sketcher.Constraint("Vertical", 14),
    Sketcher.Constraint("Horizontal", 15),
    Sketcher.Constraint("Horizontal", 16),
    Sketcher.Constraint("Vertical", 17),
    Sketcher.Constraint("Horizontal", 18),
    Sketcher.Constraint("Vertical", 19),
    Sketcher.Constraint("Vertical", 5, 2, 8, 2),
    Sketcher.Constraint("Vertical", 7, 2, 10, 2),
    Sketcher.Constraint("Equal", 10, 13),
    Sketcher.Constraint("Equal", 18, 5),
    Sketcher.Constraint("Equal", 7, 9),
    Sketcher.Constraint("Equal", 15, 17),
    Sketcher.Constraint("DistanceX", 4, 2, 4, 1, Q("4 mm")),
    Sketcher.Constraint("DistanceX", 16, 2, 16, 1, Q("2 mm")),
    Sketcher.Constraint("DistanceY", 0, 2, 0, 1, Q("8 mm")),
    Sketcher.Constraint("DistanceX", 1, 1, 1, 2, Q("7.2 mm")),
    Sketcher.Constraint("DistanceY", 12, 2, 12, 1, Q("6.2 mm")),
    Sketcher.Constraint("DistanceY", -1, 1, 12, 2, Q("29 mm")),
    Sketcher.Constraint("DistanceX", 10, 2, 12, 2, Q("1 mm")),
    Sketcher.Constraint("DistanceX", 2, 2, 16, 2, Q("1 mm")),
    Sketcher.Constraint("DistanceX", -1, 1, 0, 2, Q("7.7 mm")),
    Sketcher.Constraint("DistanceY", -1, 1, 0, 2, Q("17.3 mm")),
    Sketcher.Constraint("DistanceX", -1, 1, 4, 2, Q("9.3 mm")),
    Sketcher.Constraint("DistanceY", -1, 1, 4, 2, Q("18.9 mm")),
    Sketcher.Constraint("DistanceY", -1, 1, 8, 2, Q("21.7 mm")),
    Sketcher.Constraint("DistanceY", -1, 1, 16, 2, Q("30.6 mm")),
])
pad6 = body.newObject("PartDesign::Pad", "Pad005")
pad6.Profile = sketch10
pad6.Length = 3.3

sketch11 = body.newObject("Sketcher::SketchObject", "Sketch010")
sketch11.AttachmentSupport = (doc.getObject("XY_Plane"), [""])
sketch11.MapMode = "FlatFace"
sketch11.AttachmentOffset = App.Placement(Vector(0, 0, 1.2), App.Rotation())
sketch11.addGeometry([
    Part.LineSegment(Vector(0.1, 20.65, 0), Vector(0.1, 15.65, 0)),
    Part.LineSegment(Vector(0.1, 15.65, 0), Vector(2.1, 15.65, 0)),
    Part.LineSegment(Vector(2.1, 15.65, 0), Vector(2.1, 20.65, 0)),
    Part.LineSegment(Vector(2.1, 20.65, 0), Vector(0.1, 20.65, 0)),
    Part.LineSegment(Vector(16.3, 20.65, 0), Vector(16.3, 15.65, 0)),
    Part.LineSegment(Vector(16.3, 15.65, 0), Vector(18.3, 15.65, 0)),
    Part.LineSegment(Vector(18.3, 15.65, 0), Vector(18.3, 20.65, 0)),
    Part.LineSegment(Vector(18.3, 20.65, 0), Vector(16.3, 20.65, 0)),
], False)
sketch11.addConstraint([
    Sketcher.Constraint("Coincident", 0, 2, 1, 1),
    Sketcher.Constraint("Coincident", 1, 2, 2, 1),
    Sketcher.Constraint("Coincident", 2, 2, 3, 1),
    Sketcher.Constraint("Coincident", 3, 2, 0, 1),
    Sketcher.Constraint("Coincident", 4, 2, 5, 1),
    Sketcher.Constraint("Coincident", 5, 2, 6, 1),
    Sketcher.Constraint("Coincident", 6, 2, 7, 1),
    Sketcher.Constraint("Coincident", 7, 2, 4, 1),
    Sketcher.Constraint("Vertical", 0),
    Sketcher.Constraint("Horizontal", 1),
    Sketcher.Constraint("Vertical", 2),
    Sketcher.Constraint("Horizontal", 3),
    Sketcher.Constraint("Vertical", 4),
    Sketcher.Constraint("Horizontal", 5),
    Sketcher.Constraint("Vertical", 6),
    Sketcher.Constraint("Horizontal", 7),
    Sketcher.Constraint("Horizontal", 1, 2, 4, 2),
    Sketcher.Constraint("Horizontal", 3, 2, 6, 2),
    Sketcher.Constraint("Equal", 3, 5),
    Sketcher.Constraint("DistanceX", 1, 1, 1, 2, Q("2 mm")),
    Sketcher.Constraint("DistanceY", 0, 2, 0, 1, Q("5 mm")),
    Sketcher.Constraint("DistanceX", -1, 1, 0, 2, Q("0.1 mm")),
    Sketcher.Constraint("DistanceX", -1, 1, 4, 2, Q("16.3 mm")),
    Sketcher.Constraint("DistanceY", -1, 1, 0, 2, Q("15.65 mm")),
])
pad7 = body.newObject("PartDesign::Pad", "Pad006")
pad7.Profile = sketch11
pad7.Length = 3

sketch12 = body.newObject("Sketcher::SketchObject", "Sketch011")
sketch12.AttachmentSupport = (doc.getObject("XY_Plane"), [""])
sketch12.MapMode = "FlatFace"
sketch12.AttachmentOffset = App.Placement(Vector(0, 0, 1.2), App.Rotation())
sketch12.addGeometry([
    Part.LineSegment(Vector(0.7, 35.2, 0), Vector(0.7, 20.65, 0)),
    Part.LineSegment(Vector(0.7, 20.65, 0), Vector(2.1, 20.65, 0)),
    Part.LineSegment(Vector(2.1, 20.65, 0), Vector(2.1, 35.2, 0)),
    Part.LineSegment(Vector(2.1, 35.2, 0), Vector(0.7, 35.2, 0)),
    Part.LineSegment(Vector(16.3, 29, 0), Vector(16.3, 20.65, 0)),
    Part.LineSegment(Vector(16.3, 20.65, 0), Vector(17.7, 20.65, 0)),
    Part.LineSegment(Vector(17.7, 20.65, 0), Vector(17.7, 29, 0)),
    Part.LineSegment(Vector(17.7, 29, 0), Vector(16.3, 29, 0)),
    Part.LineSegment(Vector(16.3, 15.65, 0), Vector(16.3, 3.4, 0)),
    Part.LineSegment(Vector(16.3, 3.4, 0), Vector(17.7, 3.4, 0)),
    Part.LineSegment(Vector(17.7, 3.4, 0), Vector(17.7, 15.65, 0)),
    Part.LineSegment(Vector(17.7, 15.65, 0), Vector(16.3, 15.65, 0)),
    Part.LineSegment(Vector(0.7, 15.65, 0), Vector(0.7, 3.4, 0)),
    Part.LineSegment(Vector(0.7, 3.4, 0), Vector(2.1, 3.4, 0)),
    Part.LineSegment(Vector(2.1, 3.4, 0), Vector(2.1, 15.65, 0)),
    Part.LineSegment(Vector(2.1, 15.65, 0), Vector(0.7, 15.65, 0)),
], False)
sketch12.addConstraint([
    Sketcher.Constraint("Coincident", 0, 2, 1, 1),
    Sketcher.Constraint("Coincident", 1, 2, 2, 1),
    Sketcher.Constraint("Coincident", 2, 2, 3, 1),
    Sketcher.Constraint("Coincident", 3, 2, 0, 1),
    Sketcher.Constraint("Coincident", 4, 2, 5, 1),
    Sketcher.Constraint("Coincident", 5, 2, 6, 1),
    Sketcher.Constraint("Coincident", 6, 2, 7, 1),
    Sketcher.Constraint("Coincident", 7, 2, 4, 1),
    Sketcher.Constraint("Coincident", 8, 2, 9, 1),
    Sketcher.Constraint("Coincident", 9, 2, 10, 1),
    Sketcher.Constraint("Coincident", 10, 2, 11, 1),
    Sketcher.Constraint("Coincident", 11, 2, 8, 1),
    Sketcher.Constraint("Coincident", 12, 2, 13, 1),
    Sketcher.Constraint("Coincident", 13, 2, 14, 1),
    Sketcher.Constraint("Coincident", 14, 2, 15, 1),
    Sketcher.Constraint("Coincident", 15, 2, 12, 1),
    Sketcher.Constraint("Vertical", 0),
    Sketcher.Constraint("Horizontal", 1),
    Sketcher.Constraint("Vertical", 2),
    Sketcher.Constraint("Horizontal", 3),
    Sketcher.Constraint("Vertical", 4),
    Sketcher.Constraint("Horizontal", 5),
    Sketcher.Constraint("Vertical", 6),
    Sketcher.Constraint("Horizontal", 7),
    Sketcher.Constraint("Vertical", 8),
    Sketcher.Constraint("Horizontal", 9),
    Sketcher.Constraint("Vertical", 10),
    Sketcher.Constraint("Horizontal", 11),
    Sketcher.Constraint("Vertical", 12),
    Sketcher.Constraint("Horizontal", 13),
    Sketcher.Constraint("Vertical", 14),
    Sketcher.Constraint("Horizontal", 15),
    Sketcher.Constraint("Horizontal", 1, 2, 4, 2),
    Sketcher.Constraint("Horizontal", 9, 2, 12, 2),
    Sketcher.Constraint("Horizontal", 11, 2, 14, 2),
    Sketcher.Constraint("Vertical", 7, 2, 8, 2),
    Sketcher.Constraint("Vertical", 6, 2, 9, 2),
    Sketcher.Constraint("Vertical", 3, 2, 12, 2),
    Sketcher.Constraint("Vertical", 2, 2, 13, 2),
    Sketcher.Constraint("Equal", 3, 5),
    Sketcher.Constraint("DistanceX", 1, 1, 1, 2, Q("1.4 mm")),
    Sketcher.Constraint("DistanceY", -1, 1, 6, 2, Q("29 mm")),
    Sketcher.Constraint("DistanceX", 0, 2, 5, 2, Q("17 mm")),
    Sketcher.Constraint("DistanceY", 10, 2, 5, 2, Q("5 mm")),
    Sketcher.Constraint("DistanceY", 0, 2, 0, 1, Q("14.55 mm")),
    Sketcher.Constraint("DistanceY", 4, 2, 4, 1, Q("8.35 mm")),
    Sketcher.Constraint("DistanceY", 8, 2, 8, 1, Q("12.25 mm")),
    Sketcher.Constraint("DistanceX", -1, 1, 0, 2, Q("0.7 mm")),
])
pad8 = body.newObject("PartDesign::Pad", "Pad007")
pad8.Profile = sketch12
pad8.Length = 1.2

doc.recompute()
